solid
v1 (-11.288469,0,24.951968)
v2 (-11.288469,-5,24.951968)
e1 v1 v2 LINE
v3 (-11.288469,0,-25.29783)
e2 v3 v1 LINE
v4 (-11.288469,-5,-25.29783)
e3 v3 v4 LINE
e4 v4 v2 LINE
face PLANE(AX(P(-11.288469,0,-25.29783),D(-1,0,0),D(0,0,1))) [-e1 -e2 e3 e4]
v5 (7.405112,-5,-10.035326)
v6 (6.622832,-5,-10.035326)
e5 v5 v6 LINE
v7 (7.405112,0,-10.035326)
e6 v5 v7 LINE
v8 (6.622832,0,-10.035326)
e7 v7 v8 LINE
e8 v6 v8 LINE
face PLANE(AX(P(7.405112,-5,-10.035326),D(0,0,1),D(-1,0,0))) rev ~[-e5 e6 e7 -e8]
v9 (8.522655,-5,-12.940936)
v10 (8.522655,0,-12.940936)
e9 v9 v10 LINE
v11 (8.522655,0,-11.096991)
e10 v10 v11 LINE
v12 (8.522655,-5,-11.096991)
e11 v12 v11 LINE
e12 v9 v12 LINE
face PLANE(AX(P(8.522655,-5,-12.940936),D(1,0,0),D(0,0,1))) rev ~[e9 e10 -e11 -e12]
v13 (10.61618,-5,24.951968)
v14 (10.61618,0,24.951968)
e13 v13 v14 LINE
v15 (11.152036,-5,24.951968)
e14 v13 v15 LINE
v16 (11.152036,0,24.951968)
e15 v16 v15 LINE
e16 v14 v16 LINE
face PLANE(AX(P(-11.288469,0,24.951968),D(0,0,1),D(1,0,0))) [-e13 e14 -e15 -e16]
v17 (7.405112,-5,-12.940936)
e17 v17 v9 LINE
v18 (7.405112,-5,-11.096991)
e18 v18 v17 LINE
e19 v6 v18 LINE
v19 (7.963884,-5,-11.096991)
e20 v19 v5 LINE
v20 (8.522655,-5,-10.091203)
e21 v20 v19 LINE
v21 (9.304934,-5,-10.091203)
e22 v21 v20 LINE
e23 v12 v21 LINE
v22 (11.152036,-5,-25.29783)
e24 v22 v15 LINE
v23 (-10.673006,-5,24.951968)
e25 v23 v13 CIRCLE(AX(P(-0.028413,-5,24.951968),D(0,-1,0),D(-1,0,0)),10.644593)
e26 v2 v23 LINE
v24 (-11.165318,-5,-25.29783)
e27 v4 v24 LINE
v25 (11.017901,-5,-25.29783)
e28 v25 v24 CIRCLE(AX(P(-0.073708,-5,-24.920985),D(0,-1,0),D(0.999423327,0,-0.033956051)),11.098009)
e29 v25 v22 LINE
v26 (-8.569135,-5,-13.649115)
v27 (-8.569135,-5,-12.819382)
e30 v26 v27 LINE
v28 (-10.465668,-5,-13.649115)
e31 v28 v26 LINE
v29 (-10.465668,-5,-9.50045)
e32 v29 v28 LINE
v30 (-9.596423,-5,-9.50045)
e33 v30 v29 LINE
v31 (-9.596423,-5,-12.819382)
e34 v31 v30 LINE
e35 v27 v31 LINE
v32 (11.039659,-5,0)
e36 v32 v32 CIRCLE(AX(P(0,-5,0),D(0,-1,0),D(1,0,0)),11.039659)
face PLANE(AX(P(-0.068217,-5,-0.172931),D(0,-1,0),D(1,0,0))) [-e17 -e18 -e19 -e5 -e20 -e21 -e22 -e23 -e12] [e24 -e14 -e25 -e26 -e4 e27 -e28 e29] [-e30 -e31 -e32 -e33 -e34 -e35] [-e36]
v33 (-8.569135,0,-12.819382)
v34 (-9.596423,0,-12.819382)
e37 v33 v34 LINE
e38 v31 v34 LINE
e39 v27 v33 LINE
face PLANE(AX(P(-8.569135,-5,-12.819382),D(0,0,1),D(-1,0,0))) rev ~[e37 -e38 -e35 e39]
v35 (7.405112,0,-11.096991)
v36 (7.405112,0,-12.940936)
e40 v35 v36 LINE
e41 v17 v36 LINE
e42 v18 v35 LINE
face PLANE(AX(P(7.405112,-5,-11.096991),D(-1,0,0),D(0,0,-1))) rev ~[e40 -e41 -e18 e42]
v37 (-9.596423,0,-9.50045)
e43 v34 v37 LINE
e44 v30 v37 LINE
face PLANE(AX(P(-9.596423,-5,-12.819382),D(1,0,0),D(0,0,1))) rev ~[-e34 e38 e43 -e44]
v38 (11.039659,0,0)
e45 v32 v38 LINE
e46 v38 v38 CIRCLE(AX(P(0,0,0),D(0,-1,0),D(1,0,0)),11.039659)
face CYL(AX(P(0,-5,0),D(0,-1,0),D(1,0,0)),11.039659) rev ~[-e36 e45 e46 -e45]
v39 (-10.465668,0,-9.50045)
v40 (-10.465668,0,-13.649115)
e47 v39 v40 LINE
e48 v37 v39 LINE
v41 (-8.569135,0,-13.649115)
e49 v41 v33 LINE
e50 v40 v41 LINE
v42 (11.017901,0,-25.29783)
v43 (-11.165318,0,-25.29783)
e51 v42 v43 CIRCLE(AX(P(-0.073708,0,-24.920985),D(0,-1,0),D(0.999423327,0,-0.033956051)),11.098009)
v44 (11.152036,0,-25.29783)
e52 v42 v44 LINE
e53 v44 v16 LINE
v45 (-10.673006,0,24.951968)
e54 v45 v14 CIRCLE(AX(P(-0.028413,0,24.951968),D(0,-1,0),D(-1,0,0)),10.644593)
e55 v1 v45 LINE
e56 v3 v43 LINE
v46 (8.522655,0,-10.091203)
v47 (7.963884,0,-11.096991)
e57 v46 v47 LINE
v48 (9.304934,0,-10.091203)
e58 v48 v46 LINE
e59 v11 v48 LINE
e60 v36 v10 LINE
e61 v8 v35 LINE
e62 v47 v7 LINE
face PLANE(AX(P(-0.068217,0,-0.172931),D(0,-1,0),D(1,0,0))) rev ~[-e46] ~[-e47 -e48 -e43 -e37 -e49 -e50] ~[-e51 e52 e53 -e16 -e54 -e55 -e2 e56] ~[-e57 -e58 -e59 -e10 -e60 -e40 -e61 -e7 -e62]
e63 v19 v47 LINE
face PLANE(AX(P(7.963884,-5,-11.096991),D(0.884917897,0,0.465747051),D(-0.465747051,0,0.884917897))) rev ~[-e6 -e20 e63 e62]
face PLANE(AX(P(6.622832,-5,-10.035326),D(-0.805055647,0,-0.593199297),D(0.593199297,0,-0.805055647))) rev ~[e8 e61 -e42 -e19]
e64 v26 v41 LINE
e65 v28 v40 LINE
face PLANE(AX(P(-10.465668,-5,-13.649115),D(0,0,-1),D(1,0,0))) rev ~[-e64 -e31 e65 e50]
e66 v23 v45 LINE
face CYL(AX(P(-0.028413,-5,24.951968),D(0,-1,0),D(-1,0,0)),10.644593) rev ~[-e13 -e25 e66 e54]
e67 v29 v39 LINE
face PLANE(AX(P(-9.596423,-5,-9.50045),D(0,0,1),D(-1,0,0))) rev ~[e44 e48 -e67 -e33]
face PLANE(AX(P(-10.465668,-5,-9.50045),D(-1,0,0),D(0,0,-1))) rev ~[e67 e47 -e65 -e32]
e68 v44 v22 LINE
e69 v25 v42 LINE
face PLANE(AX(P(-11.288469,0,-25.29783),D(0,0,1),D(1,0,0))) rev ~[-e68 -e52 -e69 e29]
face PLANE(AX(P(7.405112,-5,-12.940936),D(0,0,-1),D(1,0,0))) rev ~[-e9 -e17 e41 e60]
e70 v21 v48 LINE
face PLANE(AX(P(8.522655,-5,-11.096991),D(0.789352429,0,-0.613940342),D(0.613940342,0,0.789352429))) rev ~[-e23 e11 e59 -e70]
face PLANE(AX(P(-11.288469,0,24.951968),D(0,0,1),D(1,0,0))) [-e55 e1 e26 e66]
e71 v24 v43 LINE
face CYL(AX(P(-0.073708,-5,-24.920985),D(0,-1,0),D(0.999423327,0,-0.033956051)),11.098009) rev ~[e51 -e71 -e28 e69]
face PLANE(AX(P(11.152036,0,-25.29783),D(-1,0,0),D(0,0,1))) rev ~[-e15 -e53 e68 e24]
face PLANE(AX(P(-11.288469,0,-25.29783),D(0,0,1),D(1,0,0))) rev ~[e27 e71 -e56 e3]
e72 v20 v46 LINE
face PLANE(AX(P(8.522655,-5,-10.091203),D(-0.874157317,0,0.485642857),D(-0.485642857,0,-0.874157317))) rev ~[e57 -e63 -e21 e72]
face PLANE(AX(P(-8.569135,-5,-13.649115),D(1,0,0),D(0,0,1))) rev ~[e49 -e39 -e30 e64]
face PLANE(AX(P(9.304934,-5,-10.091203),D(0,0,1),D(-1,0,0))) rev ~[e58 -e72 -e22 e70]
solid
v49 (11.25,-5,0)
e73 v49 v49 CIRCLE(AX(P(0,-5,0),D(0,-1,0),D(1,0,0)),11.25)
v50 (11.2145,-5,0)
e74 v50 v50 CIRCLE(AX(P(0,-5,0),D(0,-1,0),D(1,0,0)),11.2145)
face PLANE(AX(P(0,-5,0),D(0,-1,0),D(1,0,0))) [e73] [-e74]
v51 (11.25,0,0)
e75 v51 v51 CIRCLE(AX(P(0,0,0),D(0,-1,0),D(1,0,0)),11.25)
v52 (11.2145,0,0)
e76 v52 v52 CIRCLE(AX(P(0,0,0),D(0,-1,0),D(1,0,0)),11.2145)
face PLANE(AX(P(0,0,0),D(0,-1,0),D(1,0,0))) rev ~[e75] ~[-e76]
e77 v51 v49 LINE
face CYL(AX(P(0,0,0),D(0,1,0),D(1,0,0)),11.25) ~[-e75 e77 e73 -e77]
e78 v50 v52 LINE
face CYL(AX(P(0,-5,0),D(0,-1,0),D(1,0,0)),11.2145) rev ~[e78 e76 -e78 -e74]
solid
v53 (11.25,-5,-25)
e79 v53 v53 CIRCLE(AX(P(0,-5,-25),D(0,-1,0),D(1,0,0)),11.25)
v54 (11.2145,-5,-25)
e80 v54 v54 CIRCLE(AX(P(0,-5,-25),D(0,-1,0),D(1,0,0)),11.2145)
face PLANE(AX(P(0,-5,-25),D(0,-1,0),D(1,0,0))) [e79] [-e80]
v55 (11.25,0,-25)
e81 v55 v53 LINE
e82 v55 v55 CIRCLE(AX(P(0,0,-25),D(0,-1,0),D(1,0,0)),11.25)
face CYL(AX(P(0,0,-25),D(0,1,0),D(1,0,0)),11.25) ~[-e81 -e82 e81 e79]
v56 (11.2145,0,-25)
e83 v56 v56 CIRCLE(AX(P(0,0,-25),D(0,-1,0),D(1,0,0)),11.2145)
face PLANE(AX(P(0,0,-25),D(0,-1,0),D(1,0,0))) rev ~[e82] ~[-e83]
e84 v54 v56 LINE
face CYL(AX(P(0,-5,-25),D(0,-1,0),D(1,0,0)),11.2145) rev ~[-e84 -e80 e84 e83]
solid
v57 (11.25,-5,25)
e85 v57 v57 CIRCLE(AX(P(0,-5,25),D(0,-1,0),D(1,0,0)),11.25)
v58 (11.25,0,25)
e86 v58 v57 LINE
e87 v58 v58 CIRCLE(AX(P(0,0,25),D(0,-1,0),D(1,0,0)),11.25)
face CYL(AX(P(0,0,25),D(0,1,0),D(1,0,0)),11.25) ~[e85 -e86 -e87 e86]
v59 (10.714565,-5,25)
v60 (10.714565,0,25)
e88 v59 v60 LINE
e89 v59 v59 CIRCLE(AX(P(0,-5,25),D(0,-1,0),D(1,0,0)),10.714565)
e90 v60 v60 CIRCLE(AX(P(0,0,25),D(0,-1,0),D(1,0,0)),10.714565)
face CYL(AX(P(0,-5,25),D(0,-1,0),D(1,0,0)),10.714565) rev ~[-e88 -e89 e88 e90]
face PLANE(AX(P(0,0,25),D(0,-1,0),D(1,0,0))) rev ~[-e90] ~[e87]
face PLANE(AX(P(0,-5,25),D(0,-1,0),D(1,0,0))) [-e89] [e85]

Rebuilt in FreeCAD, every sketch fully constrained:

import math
import FreeCAD as App
import Part
import Sketcher
from FreeCAD import Vector
Q = App.Units.Quantity

doc = App.newDocument("Part")
body = doc.addObject("PartDesign::Body", "Body")
body.AllowCompound = True

sketch1 = body.newObject("Sketcher::SketchObject", "Sketch")
sketch1.AttachmentSupport = (doc.getObject("XZ_Plane"), [""])
sketch1.MapMode = "FlatFace"
sketch1.addGeometry([
    Part.Circle(Vector(0, 25, 0), Vector(0, 0, 1), 11.25),
    Part.Circle(Vector(0, 0, 0), Vector(0, 0, 1), 11.25),
    Part.Circle(Vector(0, -25, 0), Vector(0, 0, 1), 11.25),
], False)
sketch1.addConstraint([
    Sketcher.Constraint("Coincident", 1, 3, -1, 1),
    Sketcher.Constraint("Equal", 0, 1),
    Sketcher.Constraint("Equal", 1, 2),
    Sketcher.Constraint("Symmetric", 0, 3, 2, 3, -1, 1),
    Sketcher.Constraint("PointOnObject", 0, 3, -2),
    Sketcher.Constraint("Diameter", 0, Q("22.5 mm")),
    Sketcher.Constraint("DistanceY", -1, 1, 0, 3, Q("25 mm")),
])
pad1 = body.newObject("PartDesign::Pad", "Pad")
pad1.Profile = sketch1
pad1.Length = 5

sketch2 = body.newObject("Sketcher::SketchObject", "Sketch001")
sketch2.AttachmentSupport = (doc.getObject("XZ_Plane"), [""])
sketch2.MapMode = "FlatFace"
sketch2.AttachmentOffset = App.Placement(Vector(0, 0, 5), App.Rotation())
sketch2.addGeometry(Part.Circle(Vector(0, 25, 0), Vector(0, 0, 1), 10.714565), False)
sketch2.addConstraint([
    Sketcher.Constraint("PointOnObject", 0, 3, -2),
    Sketcher.Constraint("DistanceY", -1, 1, 0, 3, Q("25 mm")),
    Sketcher.Constraint("Diameter", 0, Q("21.42913 mm")),
])
pocket1 = body.newObject("PartDesign::Pocket", "Pocket")
pocket1.Profile = sketch2
pocket1.Length = 25

sketch3 = body.newObject("Sketcher::SketchObject", "Sketch002")
sketch3.AttachmentSupport = (doc.getObject("XZ_Plane"), [""])
sketch3.MapMode = "FlatFace"
sketch3.AttachmentOffset = App.Placement(Vector(0, 0, 5), App.Rotation())
sketch3.addGeometry(Part.Circle(Vector(0, 0, 0), Vector(0, 0, 1), 11.2145), False)
sketch3.addConstraint([
    Sketcher.Constraint("Coincident", 0, 3, -1, 1),
    Sketcher.Constraint("Diameter", 0, Q("22.429 mm")),
])
pocket2 = body.newObject("PartDesign::Pocket", "Pocket001")
pocket2.Profile = sketch3
pocket2.Length = 25

sketch4 = body.newObject("Sketcher::SketchObject", "Sketch003")
sketch4.AttachmentSupport = (doc.getObject("XZ_Plane"), [""])
sketch4.MapMode = "FlatFace"
sketch4.AttachmentOffset = App.Placement(Vector(0, 0, 5), App.Rotation())
sketch4.addGeometry(Part.Circle(Vector(0, -25, 0), Vector(0, 0, 1), 11.2145), False)
sketch4.addConstraint([
    Sketcher.Constraint("PointOnObject", 0, 3, -2),
    Sketcher.Constraint("Diameter", 0, Q("22.429 mm")),
    Sketcher.Constraint("DistanceY", 0, 3, -1, 1, Q("25 mm")),
])
pocket3 = body.newObject("PartDesign::Pocket", "Pocket002")
pocket3.Profile = sketch4
pocket3.Length = 25
body2 = doc.addObject("PartDesign::Body", "Body001")

sketch5 = body2.newObject("Sketcher::SketchObject", "Sketch004")
sketch5.AttachmentSupport = (doc.getObject("XZ_Plane001"), [""])
sketch5.MapMode = "FlatFace"
sketch5.addGeometry([
    Part.LineSegment(Vector(-11.288469, 24.951968, 0), Vector(-11.288469, -25.29783, 0)),
    Part.LineSegment(Vector(-11.288469, -25.29783, 0), Vector(11.152036, -25.29783, 0)),
    Part.LineSegment(Vector(11.152036, -25.29783, 0), Vector(11.152036, 24.951968, 0)),
    Part.LineSegment(Vector(11.152036, 24.951968, 0), Vector(-11.288469, 24.951968, 0)),
], False)
sketch5.addConstraint([
    Sketcher.Constraint("Coincident", 0, 2, 1, 1),
    Sketcher.Constraint("Coincident", 1, 2, 2, 1),
    Sketcher.Constraint("Coincident", 2, 2, 3, 1),
    Sketcher.Constraint("Coincident", 3, 2, 0, 1),
    Sketcher.Constraint("Vertical", 0),
    Sketcher.Constraint("Horizontal", 1),
    Sketcher.Constraint("Vertical", 2),
    Sketcher.Constraint("Horizontal", 3),
    Sketcher.Constraint("DistanceX", 1, 1, 1, 2, Q("22.440505 mm")),
    Sketcher.Constraint("DistanceY", 0, 2, 0, 1, Q("50.249798 mm")),
    Sketcher.Constraint("DistanceX", 0, 2, -1, 1, Q("11.288469 mm")),
    Sketcher.Constraint("DistanceY", 0, 2, -1, 1, Q("25.29783 mm")),
])
pad2 = body2.newObject("PartDesign::Pad", "Pad001")
pad2.Profile = sketch5
pad2.Length = 5

sketch6 = body2.newObject("Sketcher::SketchObject", "Sketch005")
sketch6.AttachmentSupport = (doc.getObject("XZ_Plane001"), [""])
sketch6.MapMode = "FlatFace"
sketch6.AttachmentOffset = App.Placement(Vector(0, 0, 5), App.Rotation())
sketch6.addGeometry([
    Part.LineSegment(Vector(10.61618, 24.951968, 0), Vector(-10.673006, 24.951968, 0)),
    Part.ArcOfCircle(Part.Circle(Vector(-0.028413, 24.951968, 0), Vector(0, 0, 1), 10.644593), math.radians(180), math.radians(360)),
], False)
sketch6.addConstraint([
    Sketcher.Constraint("Coincident", 0, 1, 1, 2),
    Sketcher.Constraint("Coincident", 1, 1, 0, 2),
    Sketcher.Constraint("Horizontal", 0),
    Sketcher.Constraint("Horizontal", 1, 3, 0, 1),
    Sketcher.Constraint("Radius", 1, Q("10.644593 mm")),
    Sketcher.Constraint("DistanceY", -1, 1, 1, 3, Q("24.951968 mm")),
    Sketcher.Constraint("DistanceX", -1, 1, 0, 1, Q("10.61618 mm")),
])
pocket4 = body2.newObject("PartDesign::Pocket", "Pocket003")
pocket4.Profile = sketch6
pocket4.Length = 25

sketch7 = body2.newObject("Sketcher::SketchObject", "Sketch006")
sketch7.AttachmentSupport = (doc.getObject("XZ_Plane001"), [""])
sketch7.MapMode = "FlatFace"
sketch7.AttachmentOffset = App.Placement(Vector(0, 0, 5), App.Rotation())
sketch7.addGeometry(Part.Circle(Vector(0, 0, 0), Vector(0, 0, 1), 11.039659), False)
sketch7.addConstraint([
    Sketcher.Constraint("Coincident", 0, 3, -1, 1),
    Sketcher.Constraint("Diameter", 0, Q("22.079318 mm")),
])
pocket5 = body2.newObject("PartDesign::Pocket", "Pocket004")
pocket5.Profile = sketch7
pocket5.Length = 25

sketch8 = body2.newObject("Sketcher::SketchObject", "Sketch007")
sketch8.AttachmentSupport = (doc.getObject("XZ_Plane001"), [""])
sketch8.MapMode = "FlatFace"
sketch8.AttachmentOffset = App.Placement(Vector(0, 0, 5), App.Rotation())
sketch8.addGeometry([
    Part.LineSegment(Vector(-11.165318, -25.29783, 0), Vector(11.017901, -25.29783, 0)),
    Part.ArcOfCircle(Part.Circle(Vector(-0.073708, -24.920985, 0), Vector(0, 0, 1), 11.098009), math.radians(-1.945912), math.radians(181.945912)),
], False)
sketch8.addConstraint([
    Sketcher.Constraint("Coincident", 0, 1, 1, 2),
    Sketcher.Constraint("Coincident", 1, 1, 0, 2),
    Sketcher.Constraint("Horizontal", 0),
    Sketcher.Constraint("Radius", 1, Q("11.098009 mm")),
    Sketcher.Constraint("DistanceX", 0, 1, 0, 2, Q("22.183219 mm")),
    Sketcher.Constraint("DistanceX", -1, 1, 1, 1, Q("11.017901 mm")),
    Sketcher.Constraint("DistanceY", 0, 1, -1, 1, Q("25.29783 mm")),
])
pocket6 = body2.newObject("PartDesign::Pocket", "Pocket005")
pocket6.Profile = sketch8
pocket6.Length = 25

sketch9 = body2.newObject("Sketcher::SketchObject", "Sketch008")
sketch9.AttachmentSupport = (doc.getObject("XZ_Plane001"), [""])
sketch9.MapMode = "FlatFace"
sketch9.AttachmentOffset = App.Placement(Vector(0, 0, 5), App.Rotation())
sketch9.addGeometry([
    Part.LineSegment(Vector(-9.596423, -9.50045, 0), Vector(-10.465668, -9.50045, 0)),
    Part.LineSegment(Vector(-10.465668, -9.50045, 0), Vector(-10.465668, -13.649115, 0)),
    Part.LineSegment(Vector(-10.465668, -13.649115, 0), Vector(-8.569135, -13.649115, 0)),
    Part.LineSegment(Vector(-8.569135, -13.649115, 0), Vector(-8.569135, -12.819382, 0)),
    Part.LineSegment(Vector(-8.569135, -12.819382, 0), Vector(-9.596423, -12.819382, 0)),
    Part.LineSegment(Vector(-9.596423, -12.819382, 0), Vector(-9.596423, -9.50045, 0)),
], False)
sketch9.addConstraint([
    Sketcher.Constraint("Coincident", 0, 2, 1, 1),
    Sketcher.Constraint("Coincident", 1, 2, 2, 1),
    Sketcher.Constraint("Coincident", 2, 2, 3, 1),
    Sketcher.Constraint("Coincident", 3, 2, 4, 1),
    Sketcher.Constraint("Coincident", 4, 2, 5, 1),
    Sketcher.Constraint("Coincident", 5, 2, 0, 1),
    Sketcher.Constraint("Horizontal", 0),
    Sketcher.Constraint("Vertical", 1),
    Sketcher.Constraint("Horizontal", 2),
    Sketcher.Constraint("Vertical", 3),
    Sketcher.Constraint("Horizontal", 4),
    Sketcher.Constraint("Vertical", 5),
    Sketcher.Constraint("DistanceX", 4, 2, 4, 1, Q("1.027288 mm")),
    Sketcher.Constraint("DistanceY", 5, 1, 5, 2, Q("3.318932 mm")),
    Sketcher.Constraint("DistanceX", 0, 2, 0, 1, Q("0.869245 mm")),
    Sketcher.Constraint("DistanceY", 1, 2, 1, 1, Q("4.148665 mm")),
    Sketcher.Constraint("DistanceX", 0, 2, -1, 1, Q("10.465668 mm")),
    Sketcher.Constraint("DistanceY", 0, 2, -1, 1, Q("9.50045 mm")),
])
pocket7 = body2.newObject("PartDesign::Pocket", "Pocket006")
pocket7.Profile = sketch9
pocket7.Length = 25

sketch10 = body2.newObject("Sketcher::SketchObject", "Sketch009")
sketch10.AttachmentSupport = (doc.getObject("XZ_Plane001"), [""])
sketch10.MapMode = "FlatFace"
sketch10.AttachmentOffset = App.Placement(Vector(0, 0, 5), App.Rotation())
sketch10.addGeometry([
    Part.LineSegment(Vector(7.405112, -10.035326, 0), Vector(6.622832, -10.035326, 0)),
    Part.LineSegment(Vector(6.622832, -10.035326, 0), Vector(7.405112, -11.096991, 0)),
    Part.LineSegment(Vector(7.405112, -11.096991, 0), Vector(7.405112, -12.940936, 0)),
    Part.LineSegment(Vector(7.405112, -12.940936, 0), Vector(8.522655, -12.940936, 0)),
    Part.LineSegment(Vector(8.522655, -12.940936, 0), Vector(8.522655, -11.096991, 0)),
    Part.LineSegment(Vector(8.522655, -11.096991, 0), Vector(9.304934, -10.091203, 0)),
    Part.LineSegment(Vector(9.304934, -10.091203, 0), Vector(8.522655, -10.091203, 0)),
    Part.LineSegment(Vector(8.522655, -10.091203, 0), Vector(7.963884, -11.096991, 0)),
    Part.LineSegment(Vector(7.963884, -11.096991, 0), Vector(7.405112, -10.035326, 0)),
], False)
sketch10.addConstraint([
    Sketcher.Constraint("Coincident", 0, 2, 1, 1),
    Sketcher.Constraint("Coincident", 1, 2, 2, 1),
    Sketcher.Constraint("Coincident", 2, 2, 3, 1),
    Sketcher.Constraint("Coincident", 3, 2, 4, 1),
    Sketcher.Constraint("Coincident", 4, 2, 5, 1),
    Sketcher.Constraint("Coincident", 5, 2, 6, 1),
    Sketcher.Constraint("Coincident", 6, 2, 7, 1),
    Sketcher.Constraint("Coincident", 7, 2, 8, 1),
    Sketcher.Constraint("Coincident", 8, 2, 0, 1),
    Sketcher.Constraint("Horizontal", 0),
    Sketcher.Constraint("Vertical", 2),
    Sketcher.Constraint("Horizontal", 3),
    Sketcher.Constraint("Vertical", 4),
    Sketcher.Constraint("Horizontal", 6),
    Sketcher.Constraint("Horizontal", 1, 2, 4, 2),
    Sketcher.Constraint("Horizontal", 4, 2, 7, 2),
    Sketcher.Constraint("Vertical", 4, 2, 6, 2),
    Sketcher.Constraint("Vertical", 2, 2, 8, 2),
    Sketcher.Constraint("Equal", 0, 6),
    Sketcher.Constraint("DistanceX", 0, 2, 0, 1, Q("0.78228 mm")),
    Sketcher.Constraint("DistanceX", 0, 2, 5, 2, Q("2.682102 mm")),
    Sketcher.Constraint("Distance", 7, Q("1.15058 mm")),
    Sketcher.Constraint("DistanceY", 2, 2, 2, 1, Q("1.843945 mm")),
    Sketcher.Constraint("DistanceX", -1, 1, 0, 2, Q("6.622832 mm")),
    Sketcher.Constraint("DistanceY", 1, 2, -1, 1, Q("11.096991 mm")),
    Sketcher.Constraint("DistanceY", 2, 2, 0, 2, Q("2.90561 mm")),
    Sketcher.Constraint("DistanceX", 7, 2, 4, 2, Q("0.558771 mm")),
])
pocket8 = body2.newObject("PartDesign::Pocket", "Pocket007")
pocket8.Profile = sketch10
pocket8.Length = 25

doc.recompute()
